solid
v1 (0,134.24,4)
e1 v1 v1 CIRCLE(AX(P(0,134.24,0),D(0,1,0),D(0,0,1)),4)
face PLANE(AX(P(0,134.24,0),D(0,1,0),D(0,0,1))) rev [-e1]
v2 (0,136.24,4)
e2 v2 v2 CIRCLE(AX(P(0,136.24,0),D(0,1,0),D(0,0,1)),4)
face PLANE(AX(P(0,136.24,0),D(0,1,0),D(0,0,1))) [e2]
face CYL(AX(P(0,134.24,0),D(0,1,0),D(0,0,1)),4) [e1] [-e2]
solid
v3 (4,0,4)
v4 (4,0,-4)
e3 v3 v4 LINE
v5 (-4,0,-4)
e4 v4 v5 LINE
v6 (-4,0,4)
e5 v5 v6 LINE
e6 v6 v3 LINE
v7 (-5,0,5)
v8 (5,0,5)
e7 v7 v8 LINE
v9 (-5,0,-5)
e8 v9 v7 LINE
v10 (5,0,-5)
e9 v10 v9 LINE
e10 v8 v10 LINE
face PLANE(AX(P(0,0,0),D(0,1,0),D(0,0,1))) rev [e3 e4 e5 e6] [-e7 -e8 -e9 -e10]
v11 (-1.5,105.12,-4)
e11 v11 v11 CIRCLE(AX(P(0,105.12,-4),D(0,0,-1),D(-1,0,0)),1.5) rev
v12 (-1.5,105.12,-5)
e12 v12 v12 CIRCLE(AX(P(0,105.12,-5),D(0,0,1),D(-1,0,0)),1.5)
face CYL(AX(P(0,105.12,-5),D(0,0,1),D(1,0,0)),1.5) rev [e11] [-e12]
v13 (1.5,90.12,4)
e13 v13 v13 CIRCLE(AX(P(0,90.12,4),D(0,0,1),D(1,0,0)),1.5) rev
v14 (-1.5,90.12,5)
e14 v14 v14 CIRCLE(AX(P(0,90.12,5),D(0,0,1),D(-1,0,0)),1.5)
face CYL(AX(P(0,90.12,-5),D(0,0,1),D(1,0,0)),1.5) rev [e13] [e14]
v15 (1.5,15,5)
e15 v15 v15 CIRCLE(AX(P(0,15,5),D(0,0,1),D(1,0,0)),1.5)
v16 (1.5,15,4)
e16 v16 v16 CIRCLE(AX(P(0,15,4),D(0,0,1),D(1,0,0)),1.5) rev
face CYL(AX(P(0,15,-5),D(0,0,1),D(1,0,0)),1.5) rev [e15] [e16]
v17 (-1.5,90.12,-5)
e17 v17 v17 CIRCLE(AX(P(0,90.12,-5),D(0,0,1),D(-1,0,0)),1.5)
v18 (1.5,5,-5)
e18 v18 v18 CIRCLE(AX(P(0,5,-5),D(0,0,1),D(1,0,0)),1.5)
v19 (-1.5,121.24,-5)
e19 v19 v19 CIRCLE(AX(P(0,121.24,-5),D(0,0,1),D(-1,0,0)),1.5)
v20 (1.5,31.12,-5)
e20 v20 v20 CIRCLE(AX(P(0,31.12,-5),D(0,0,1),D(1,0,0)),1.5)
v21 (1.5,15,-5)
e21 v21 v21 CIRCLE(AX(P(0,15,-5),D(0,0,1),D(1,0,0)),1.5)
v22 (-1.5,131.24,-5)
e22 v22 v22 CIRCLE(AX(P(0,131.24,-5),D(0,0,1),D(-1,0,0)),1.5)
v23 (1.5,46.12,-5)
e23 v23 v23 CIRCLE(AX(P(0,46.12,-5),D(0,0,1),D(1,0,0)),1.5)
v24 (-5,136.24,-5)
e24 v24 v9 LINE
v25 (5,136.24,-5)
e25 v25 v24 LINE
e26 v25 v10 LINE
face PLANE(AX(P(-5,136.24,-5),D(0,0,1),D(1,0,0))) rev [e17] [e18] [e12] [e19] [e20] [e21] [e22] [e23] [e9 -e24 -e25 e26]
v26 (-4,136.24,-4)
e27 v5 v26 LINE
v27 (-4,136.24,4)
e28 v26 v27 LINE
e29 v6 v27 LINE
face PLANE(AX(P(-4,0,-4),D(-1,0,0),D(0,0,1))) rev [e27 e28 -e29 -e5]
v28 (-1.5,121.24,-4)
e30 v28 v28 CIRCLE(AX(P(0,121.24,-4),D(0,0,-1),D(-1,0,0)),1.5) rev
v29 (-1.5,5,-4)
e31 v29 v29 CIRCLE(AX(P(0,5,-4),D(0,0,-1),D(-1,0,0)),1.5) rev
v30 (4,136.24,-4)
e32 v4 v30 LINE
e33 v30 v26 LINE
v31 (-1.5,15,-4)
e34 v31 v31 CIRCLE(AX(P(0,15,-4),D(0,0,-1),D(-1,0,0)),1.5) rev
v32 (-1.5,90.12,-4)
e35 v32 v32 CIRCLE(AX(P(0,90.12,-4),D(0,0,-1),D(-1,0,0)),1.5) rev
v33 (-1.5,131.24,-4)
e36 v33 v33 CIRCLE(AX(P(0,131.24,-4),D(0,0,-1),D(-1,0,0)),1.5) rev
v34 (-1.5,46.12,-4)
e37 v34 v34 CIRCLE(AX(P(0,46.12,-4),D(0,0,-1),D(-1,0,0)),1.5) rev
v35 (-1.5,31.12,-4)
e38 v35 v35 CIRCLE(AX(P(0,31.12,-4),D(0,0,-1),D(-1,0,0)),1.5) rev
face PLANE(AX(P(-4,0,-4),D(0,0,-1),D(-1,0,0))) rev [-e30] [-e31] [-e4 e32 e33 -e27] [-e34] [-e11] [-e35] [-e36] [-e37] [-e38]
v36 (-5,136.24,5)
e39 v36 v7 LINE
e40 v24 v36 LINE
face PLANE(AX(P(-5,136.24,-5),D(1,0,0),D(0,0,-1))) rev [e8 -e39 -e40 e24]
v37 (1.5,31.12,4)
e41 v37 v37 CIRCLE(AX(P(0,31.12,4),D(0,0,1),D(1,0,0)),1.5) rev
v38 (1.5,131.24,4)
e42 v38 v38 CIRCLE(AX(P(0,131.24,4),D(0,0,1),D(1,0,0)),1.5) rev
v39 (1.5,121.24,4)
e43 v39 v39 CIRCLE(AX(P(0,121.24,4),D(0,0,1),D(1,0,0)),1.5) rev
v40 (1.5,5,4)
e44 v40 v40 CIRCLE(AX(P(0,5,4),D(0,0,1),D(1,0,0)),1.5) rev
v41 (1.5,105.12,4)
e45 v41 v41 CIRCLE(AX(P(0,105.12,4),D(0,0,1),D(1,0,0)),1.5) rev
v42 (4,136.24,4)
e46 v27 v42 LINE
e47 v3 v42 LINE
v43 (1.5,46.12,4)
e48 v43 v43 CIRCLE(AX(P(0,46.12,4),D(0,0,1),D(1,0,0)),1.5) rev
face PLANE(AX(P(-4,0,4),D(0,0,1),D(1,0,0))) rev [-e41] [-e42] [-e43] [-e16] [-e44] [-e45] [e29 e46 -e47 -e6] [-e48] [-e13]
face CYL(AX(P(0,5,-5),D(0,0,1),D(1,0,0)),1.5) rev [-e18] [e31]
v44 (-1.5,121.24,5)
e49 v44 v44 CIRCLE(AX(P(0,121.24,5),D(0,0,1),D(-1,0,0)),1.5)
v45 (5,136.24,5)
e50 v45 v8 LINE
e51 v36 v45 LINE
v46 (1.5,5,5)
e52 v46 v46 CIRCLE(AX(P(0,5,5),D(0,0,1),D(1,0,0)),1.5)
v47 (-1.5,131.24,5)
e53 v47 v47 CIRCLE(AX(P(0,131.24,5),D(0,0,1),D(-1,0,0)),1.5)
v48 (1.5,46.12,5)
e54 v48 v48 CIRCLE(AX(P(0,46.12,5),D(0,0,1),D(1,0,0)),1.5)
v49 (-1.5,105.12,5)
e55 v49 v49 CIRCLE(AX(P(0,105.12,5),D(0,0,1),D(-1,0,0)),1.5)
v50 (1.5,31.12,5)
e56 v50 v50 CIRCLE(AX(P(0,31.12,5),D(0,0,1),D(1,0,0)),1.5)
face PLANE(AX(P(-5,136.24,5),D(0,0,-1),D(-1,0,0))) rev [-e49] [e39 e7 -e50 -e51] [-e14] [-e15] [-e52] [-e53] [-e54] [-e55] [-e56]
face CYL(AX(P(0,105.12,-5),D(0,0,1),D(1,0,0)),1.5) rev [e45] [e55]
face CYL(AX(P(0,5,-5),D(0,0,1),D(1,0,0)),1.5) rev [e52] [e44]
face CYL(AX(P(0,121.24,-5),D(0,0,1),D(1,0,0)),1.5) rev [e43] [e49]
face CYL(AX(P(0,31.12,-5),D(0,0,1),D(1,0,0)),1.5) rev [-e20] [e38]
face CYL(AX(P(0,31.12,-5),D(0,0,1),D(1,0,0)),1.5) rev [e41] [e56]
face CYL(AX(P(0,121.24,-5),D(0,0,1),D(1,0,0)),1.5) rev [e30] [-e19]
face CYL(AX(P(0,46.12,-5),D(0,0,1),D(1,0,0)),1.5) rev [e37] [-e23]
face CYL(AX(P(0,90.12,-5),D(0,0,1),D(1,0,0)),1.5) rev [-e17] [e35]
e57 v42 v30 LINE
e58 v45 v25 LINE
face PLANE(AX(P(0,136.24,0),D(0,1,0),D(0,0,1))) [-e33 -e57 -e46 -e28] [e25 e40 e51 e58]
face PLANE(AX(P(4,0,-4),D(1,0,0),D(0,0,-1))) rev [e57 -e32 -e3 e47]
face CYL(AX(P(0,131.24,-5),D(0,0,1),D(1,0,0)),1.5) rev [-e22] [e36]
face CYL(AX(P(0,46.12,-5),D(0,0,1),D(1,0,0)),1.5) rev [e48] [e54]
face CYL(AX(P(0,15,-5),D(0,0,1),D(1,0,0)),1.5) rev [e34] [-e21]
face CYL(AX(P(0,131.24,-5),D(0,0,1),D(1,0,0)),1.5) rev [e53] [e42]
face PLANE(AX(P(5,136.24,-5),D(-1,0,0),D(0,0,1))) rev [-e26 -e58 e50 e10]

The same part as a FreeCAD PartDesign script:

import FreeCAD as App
import Part
import Sketcher
from FreeCAD import Vector

doc = App.newDocument("Part")
body = doc.addObject("PartDesign::Body", "Body")

sketch1 = body.newObject("Sketcher::SketchObject", "Sketch")
sketch1.AttachmentSupport = (doc.getObject("XZ_Plane"), [""])
sketch1.MapMode = "FlatFace"
sketch1.addGeometry([
    Part.LineSegment(Vector(-5, -5, 0), Vector(-5, 5, 0)),
    Part.LineSegment(Vector(-5, 5, 0), Vector(5, 5, 0)),
    Part.LineSegment(Vector(5, 5, 0), Vector(5, -5, 0)),
    Part.LineSegment(Vector(5, -5, 0), Vector(-5, -5, 0)),
], False)
sketch1.addConstraint([
    Sketcher.Constraint("Coincident", 0, 2, 1, 1),
    Sketcher.Constraint("Coincident", 1, 2, 2, 1),
    Sketcher.Constraint("Coincident", 2, 2, 3, 1),
    Sketcher.Constraint("Coincident", 3, 2, 0, 1),
    Sketcher.Constraint("Vertical", 0),
    Sketcher.Constraint("Horizontal", 1),
    Sketcher.Constraint("Vertical", 2),
    Sketcher.Constraint("Horizontal", 3),
    Sketcher.Constraint("Symmetric", 0, 2, 2, 2, -1, 1),
    Sketcher.Constraint("Equal", 3, 0),
    Sketcher.Constraint("DistanceX", 1, 1, 1, 2, 10.0),
])
pad1 = body.newObject("PartDesign::Pad", "Pad")
pad1.Profile = sketch1
pad1.Length = 136.24
pad1.Reversed = True

sketch2 = body.newObject("Sketcher::SketchObject", "Sketch001")
sketch2.AttachmentSupport = (doc.getObject("XY_Plane"), [""])
sketch2.MapMode = "FlatFace"
sketch2.AttachmentOffset = App.Placement(Vector(0, 0, 5), App.Rotation())
sketch2.addGeometry([
    Part.Circle(Vector(0, 5, 0), Vector(0, 0, 1), 1.5),
    Part.Circle(Vector(0, 15, 0), Vector(0, 0, 1), 1.5),
    Part.Circle(Vector(0, 121.2, 0), Vector(0, 0, 1), 1.5),
    Part.Circle(Vector(0, 131.2, 0), Vector(0, 0, 1), 1.5),
    Part.Circle(Vector(0, 46.1, 0), Vector(0, 0, 1), 1.5),
    Part.Circle(Vector(0, 90.1, 0), Vector(0, 0, 1), 1.5),
    Part.Circle(Vector(0, 31.1, 0), Vector(0, 0, 1), 1.5),
    Part.Circle(Vector(0, 105.1, 0), Vector(0, 0, 1), 1.5),
], False)
sketch2.addConstraint([
    Sketcher.Constraint("Equal", 0, 1),
    Sketcher.Constraint("Equal", 1, 2),
    Sketcher.Constraint("Equal", 2, 3),
    Sketcher.Constraint("Equal", 3, 4),
    Sketcher.Constraint("Equal", 4, 5),
    Sketcher.Constraint("Equal", 5, 6),
    Sketcher.Constraint("Equal", 6, 7),
    Sketcher.Constraint("PointOnObject", 0, 3, -2),
    Sketcher.Constraint("PointOnObject", 1, 3, -2),
    Sketcher.Constraint("PointOnObject", 2, 3, -2),
    Sketcher.Constraint("PointOnObject", 3, 3, -2),
    Sketcher.Constraint("PointOnObject", 4, 3, -2),
    Sketcher.Constraint("PointOnObject", 5, 3, -2),
    Sketcher.Constraint("PointOnObject", 6, 3, -2),
    Sketcher.Constraint("PointOnObject", 7, 3, -2),
    Sketcher.Constraint("Diameter", 0, 3.0),
    Sketcher.Constraint("DistanceY", -1, 1, 0, 3, 5.0),
    Sketcher.Constraint("DistanceY", -1, 1, 1, 3, 15.0),
    Sketcher.Constraint("DistanceY", 2, 3, 3, 3, 10.0),
    Sketcher.Constraint("DistanceY", 4, 3, 5, 3, 44.0),
    Sketcher.Constraint("DistanceY", 6, 3, 4, 3, 15.0),
    Sketcher.Constraint("DistanceY", 5, 3, 7, 3, 15.0),
    Sketcher.Constraint("DistanceY", -1, 1, 2, 3, 121.24),
    Sketcher.Constraint("DistanceY", -1, 1, 4, 3, 46.12),
])
pocket1 = body.newObject("PartDesign::Pocket", "Pocket")
pocket1.Profile = sketch2
pocket1.Type = "ThroughAll"

sketch3 = body.newObject("Sketcher::SketchObject", "Sketch002")
sketch3.AttachmentSupport = (doc.getObject("XZ_Plane"), [""])
sketch3.MapMode = "FlatFace"
sketch3.AttachmentOffset = App.Placement(Vector(0, 0, -136.24), App.Rotation())
sketch3.addGeometry([
    Part.LineSegment(Vector(-4, -4, 0), Vector(-4, 4, 0)),
    Part.LineSegment(Vector(-4, 4, 0), Vector(4, 4, 0)),
    Part.LineSegment(Vector(4, 4, 0), Vector(4, -4, 0)),
    Part.LineSegment(Vector(4, -4, 0), Vector(-4, -4, 0)),
], False)
sketch3.addConstraint([
    Sketcher.Constraint("Coincident", 0, 2, 1, 1),
    Sketcher.Constraint("Coincident", 1, 2, 2, 1),
    Sketcher.Constraint("Coincident", 2, 2, 3, 1),
    Sketcher.Constraint("Coincident", 3, 2, 0, 1),
    Sketcher.Constraint("Vertical", 0),
    Sketcher.Constraint("Horizontal", 1),
    Sketcher.Constraint("Vertical", 2),
    Sketcher.Constraint("Horizontal", 3),
    Sketcher.Constraint("Symmetric", 0, 2, 2, 2, -1, 1),
    Sketcher.Constraint("Equal", 3, 0),
    Sketcher.Constraint("DistanceX", 1, 1, 1, 2, 8.0),
])
pocket2 = body.newObject("PartDesign::Pocket", "Pocket001")
pocket2.Profile = sketch3
pocket2.Type = "ThroughAll"
pocket2.Reversed = True
body2 = doc.addObject("PartDesign::Body", "Body001")

sketch4 = body2.newObject("Sketcher::SketchObject", "Sketch003")
sketch4.AttachmentSupport = (doc.getObject("XZ_Plane001"), [""])
sketch4.MapMode = "FlatFace"
sketch4.AttachmentOffset = App.Placement(Vector(0, 0, -136.24), App.Rotation())
sketch4.addGeometry(Part.Circle(Vector(0, 0, 0), Vector(0, 0, 1), 4), False)
sketch4.addConstraint([
    Sketcher.Constraint("Coincident", 0, 3, -1, 1),
    Sketcher.Constraint("Diameter", 0, 8.0),
])
pad2 = body2.newObject("PartDesign::Pad", "Pad001")
pad2.Profile = sketch4
pad2.Length = 2

doc.recompute()
